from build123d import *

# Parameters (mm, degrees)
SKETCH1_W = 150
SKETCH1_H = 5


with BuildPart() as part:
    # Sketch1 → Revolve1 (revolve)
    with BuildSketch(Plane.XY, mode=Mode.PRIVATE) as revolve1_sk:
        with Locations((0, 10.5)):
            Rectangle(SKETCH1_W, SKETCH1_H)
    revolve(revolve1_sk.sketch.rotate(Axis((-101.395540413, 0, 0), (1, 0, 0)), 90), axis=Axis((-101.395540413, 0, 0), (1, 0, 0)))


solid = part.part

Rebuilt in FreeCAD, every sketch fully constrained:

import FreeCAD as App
import Part
import Sketcher
from FreeCAD import Vector

doc = App.newDocument("Part")
body = doc.addObject("PartDesign::Body", "Body")

# Sketch on XY plane
sketch1 = doc.addObject("Sketcher::SketchObject", "Sketch")
body.addObject(sketch1)
sketch1.AttachmentSupport = (doc.XY_Plane, [""])
sketch1.MapMode = "FlatFace"
sketch1.addGeometry([
    Part.LineSegment(Vector(-75, 13, 0), Vector(-75, 8, 0)),
    Part.LineSegment(Vector(-75, 8, 0), Vector(75, 8, 0)),
    Part.LineSegment(Vector(75, 8, 0), Vector(75, 13, 0)),
    Part.LineSegment(Vector(75, 13, 0), Vector(-75, 13, 0)),
], False)
sketch1.addConstraint([
    Sketcher.Constraint("Coincident", 0, 2, 1, 1),
    Sketcher.Constraint("Coincident", 1, 2, 2, 1),
    Sketcher.Constraint("Coincident", 2, 2, 3, 1),
    Sketcher.Constraint("Coincident", 3, 2, 0, 1),
    Sketcher.Constraint("Vertical", 0),
    Sketcher.Constraint("Horizontal", 1),
    Sketcher.Constraint("Vertical", 2),
    Sketcher.Constraint("Horizontal", 3),
    Sketcher.Constraint("DistanceX", 1, 1, 1, 2, 150.0),
    Sketcher.Constraint("DistanceY", 0, 2, 0, 1, 5.0),
    Sketcher.Constraint("DistanceX", 0, 2, -1, 1, 75.0),
    Sketcher.Constraint("DistanceY", -1, 1, 0, 2, 8.0),
])
revolution = doc.addObject("PartDesign::Revolution", "Revolution")
body.addObject(revolution)
revolution.Profile = sketch1
revolution.ReferenceAxis = (sketch1, ["H_Axis"])
revolution.Angle = 360

doc.recompute()
